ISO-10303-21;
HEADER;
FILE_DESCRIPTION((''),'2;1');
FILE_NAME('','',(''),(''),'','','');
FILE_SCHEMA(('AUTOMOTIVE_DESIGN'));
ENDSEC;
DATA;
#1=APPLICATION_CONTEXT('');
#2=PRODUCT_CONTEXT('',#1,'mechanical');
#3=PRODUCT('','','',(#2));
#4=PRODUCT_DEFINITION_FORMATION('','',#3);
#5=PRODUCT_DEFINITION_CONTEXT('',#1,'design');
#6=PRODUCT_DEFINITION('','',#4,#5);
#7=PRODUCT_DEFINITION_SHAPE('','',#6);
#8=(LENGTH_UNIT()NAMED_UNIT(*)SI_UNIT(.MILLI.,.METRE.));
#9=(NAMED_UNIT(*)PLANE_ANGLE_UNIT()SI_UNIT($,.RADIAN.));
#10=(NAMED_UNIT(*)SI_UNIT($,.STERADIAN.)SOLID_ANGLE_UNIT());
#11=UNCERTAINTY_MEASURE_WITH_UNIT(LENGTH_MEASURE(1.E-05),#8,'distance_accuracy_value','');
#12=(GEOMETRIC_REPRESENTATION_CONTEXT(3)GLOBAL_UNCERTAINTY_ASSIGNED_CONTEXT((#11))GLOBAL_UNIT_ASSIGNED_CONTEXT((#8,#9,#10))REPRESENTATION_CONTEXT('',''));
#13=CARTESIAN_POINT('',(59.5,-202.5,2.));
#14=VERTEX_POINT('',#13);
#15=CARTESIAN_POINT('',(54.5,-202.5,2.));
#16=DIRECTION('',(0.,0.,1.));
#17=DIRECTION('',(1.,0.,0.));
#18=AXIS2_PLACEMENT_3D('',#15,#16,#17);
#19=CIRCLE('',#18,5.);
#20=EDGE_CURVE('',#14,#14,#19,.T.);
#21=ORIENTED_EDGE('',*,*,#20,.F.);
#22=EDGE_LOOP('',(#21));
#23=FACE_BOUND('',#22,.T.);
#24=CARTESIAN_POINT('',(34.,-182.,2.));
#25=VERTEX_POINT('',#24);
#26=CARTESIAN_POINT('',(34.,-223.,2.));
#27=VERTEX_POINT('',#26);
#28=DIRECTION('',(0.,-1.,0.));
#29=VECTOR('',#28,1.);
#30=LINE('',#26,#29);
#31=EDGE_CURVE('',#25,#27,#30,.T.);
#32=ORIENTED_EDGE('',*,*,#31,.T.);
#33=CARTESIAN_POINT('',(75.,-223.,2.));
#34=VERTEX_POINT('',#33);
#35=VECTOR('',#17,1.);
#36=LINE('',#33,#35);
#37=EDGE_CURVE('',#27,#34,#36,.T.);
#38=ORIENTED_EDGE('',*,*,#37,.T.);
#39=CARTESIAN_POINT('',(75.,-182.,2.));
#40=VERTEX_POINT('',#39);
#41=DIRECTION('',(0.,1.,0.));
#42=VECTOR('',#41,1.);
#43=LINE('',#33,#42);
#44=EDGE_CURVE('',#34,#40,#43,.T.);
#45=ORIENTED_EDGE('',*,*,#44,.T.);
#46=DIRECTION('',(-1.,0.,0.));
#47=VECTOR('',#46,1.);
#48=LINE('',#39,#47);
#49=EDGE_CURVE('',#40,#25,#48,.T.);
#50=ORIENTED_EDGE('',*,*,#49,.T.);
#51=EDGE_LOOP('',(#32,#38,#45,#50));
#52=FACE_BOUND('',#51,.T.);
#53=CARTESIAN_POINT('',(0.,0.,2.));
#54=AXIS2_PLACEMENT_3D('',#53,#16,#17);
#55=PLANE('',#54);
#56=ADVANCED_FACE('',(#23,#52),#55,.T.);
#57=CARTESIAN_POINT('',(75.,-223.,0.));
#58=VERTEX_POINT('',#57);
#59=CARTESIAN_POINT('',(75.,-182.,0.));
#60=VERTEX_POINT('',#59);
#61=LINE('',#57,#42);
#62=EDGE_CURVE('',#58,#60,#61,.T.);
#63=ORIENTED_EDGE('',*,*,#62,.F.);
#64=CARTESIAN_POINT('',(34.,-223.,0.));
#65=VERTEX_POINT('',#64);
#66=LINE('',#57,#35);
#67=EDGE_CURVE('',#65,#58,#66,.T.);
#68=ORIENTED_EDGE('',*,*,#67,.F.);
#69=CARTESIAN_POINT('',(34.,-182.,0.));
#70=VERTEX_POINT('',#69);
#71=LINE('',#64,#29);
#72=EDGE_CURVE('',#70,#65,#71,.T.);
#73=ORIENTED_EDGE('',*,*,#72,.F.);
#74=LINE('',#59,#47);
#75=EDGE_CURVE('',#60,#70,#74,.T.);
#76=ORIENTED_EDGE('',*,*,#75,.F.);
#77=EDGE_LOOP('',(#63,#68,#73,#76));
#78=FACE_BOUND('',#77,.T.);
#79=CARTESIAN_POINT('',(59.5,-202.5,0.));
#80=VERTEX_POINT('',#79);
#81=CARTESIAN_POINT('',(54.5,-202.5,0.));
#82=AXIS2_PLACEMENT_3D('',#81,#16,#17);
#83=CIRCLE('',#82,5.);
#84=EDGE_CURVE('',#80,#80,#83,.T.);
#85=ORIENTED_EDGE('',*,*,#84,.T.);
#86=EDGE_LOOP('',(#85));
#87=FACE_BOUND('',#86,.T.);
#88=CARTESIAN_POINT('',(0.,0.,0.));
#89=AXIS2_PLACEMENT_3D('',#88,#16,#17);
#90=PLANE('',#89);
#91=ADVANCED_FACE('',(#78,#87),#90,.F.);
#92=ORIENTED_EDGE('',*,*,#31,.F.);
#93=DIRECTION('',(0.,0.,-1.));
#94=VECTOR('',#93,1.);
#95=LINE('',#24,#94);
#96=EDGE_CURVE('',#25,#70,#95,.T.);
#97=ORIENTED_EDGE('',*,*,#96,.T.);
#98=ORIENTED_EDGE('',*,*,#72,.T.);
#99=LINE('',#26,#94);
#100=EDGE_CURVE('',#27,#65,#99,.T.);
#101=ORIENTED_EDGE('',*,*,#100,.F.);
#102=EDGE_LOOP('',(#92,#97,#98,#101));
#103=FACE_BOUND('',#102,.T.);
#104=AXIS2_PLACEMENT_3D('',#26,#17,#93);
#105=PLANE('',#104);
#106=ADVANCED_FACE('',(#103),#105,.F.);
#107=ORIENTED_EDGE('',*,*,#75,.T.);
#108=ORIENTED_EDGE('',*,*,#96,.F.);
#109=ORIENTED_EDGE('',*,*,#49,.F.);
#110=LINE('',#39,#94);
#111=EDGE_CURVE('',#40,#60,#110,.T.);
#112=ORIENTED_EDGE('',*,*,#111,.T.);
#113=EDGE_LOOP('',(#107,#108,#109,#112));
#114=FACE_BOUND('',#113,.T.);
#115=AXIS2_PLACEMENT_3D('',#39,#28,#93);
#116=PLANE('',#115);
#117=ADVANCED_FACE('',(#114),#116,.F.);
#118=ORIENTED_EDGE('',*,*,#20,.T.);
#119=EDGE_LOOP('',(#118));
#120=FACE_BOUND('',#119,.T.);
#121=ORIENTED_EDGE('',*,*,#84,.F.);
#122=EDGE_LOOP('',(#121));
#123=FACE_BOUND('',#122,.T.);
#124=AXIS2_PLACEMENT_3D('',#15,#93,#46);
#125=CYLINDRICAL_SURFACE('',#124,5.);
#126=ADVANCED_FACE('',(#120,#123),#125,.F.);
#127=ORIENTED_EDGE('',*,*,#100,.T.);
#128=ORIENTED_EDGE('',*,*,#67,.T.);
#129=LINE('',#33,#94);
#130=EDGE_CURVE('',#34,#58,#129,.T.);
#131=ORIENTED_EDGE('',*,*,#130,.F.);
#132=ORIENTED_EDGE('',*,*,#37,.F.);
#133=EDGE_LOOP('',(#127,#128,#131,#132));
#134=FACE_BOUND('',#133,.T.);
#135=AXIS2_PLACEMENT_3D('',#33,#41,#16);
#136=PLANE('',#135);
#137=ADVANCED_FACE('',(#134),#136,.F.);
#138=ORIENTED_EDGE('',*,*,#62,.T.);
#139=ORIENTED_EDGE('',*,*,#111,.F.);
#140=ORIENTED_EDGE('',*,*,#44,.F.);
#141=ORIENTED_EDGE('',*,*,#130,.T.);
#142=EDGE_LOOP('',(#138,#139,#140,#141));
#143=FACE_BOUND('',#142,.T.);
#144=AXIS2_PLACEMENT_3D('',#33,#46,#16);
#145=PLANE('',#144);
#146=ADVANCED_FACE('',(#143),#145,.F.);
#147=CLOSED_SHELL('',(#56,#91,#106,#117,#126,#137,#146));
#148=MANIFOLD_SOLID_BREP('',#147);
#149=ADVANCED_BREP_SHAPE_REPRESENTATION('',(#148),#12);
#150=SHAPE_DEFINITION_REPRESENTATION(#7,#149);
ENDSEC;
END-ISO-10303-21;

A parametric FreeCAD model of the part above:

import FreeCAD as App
import Part
import Sketcher

V = App.Vector
Q = App.Units.Quantity


def add_polygon(sketch, points):
    """Adds a closed chain of lines whose ends are joined by coincident constraints."""
    first, n = sketch.GeometryCount, len(points)
    for a, b in zip(points, points[1:] + points[:1]):
        sketch.addGeometry(Part.LineSegment(App.Vector(*a, 0), App.Vector(*b, 0)), False)
    for i in range(n):
        sketch.addConstraint(Sketcher.Constraint("Coincident", first + i, 2, first + (i + 1) % n, 1))

doc = App.newDocument("Part")
body = doc.addObject("PartDesign::Body", "Body")

sketch1 = body.newObject("Sketcher::SketchObject", "Sketch")
sketch1.AttachmentSupport = (doc.getObject("XY_Plane"), [""])
sketch1.MapMode = "FlatFace"
add_polygon(sketch1, [(34, -182), (34, -223), (75, -223), (75, -182)])
sketch1.addConstraint(Sketcher.Constraint("Vertical", 0))
sketch1.addConstraint(Sketcher.Constraint("Horizontal", 1))
sketch1.addConstraint(Sketcher.Constraint("Vertical", 2))
sketch1.addConstraint(Sketcher.Constraint("Horizontal", 3))
sketch1.addConstraint(Sketcher.Constraint("Equal", 3, 0))
sketch1.addConstraint(Sketcher.Constraint("DistanceX", 1, 1, 1, 2, Q("41 mm")))
sketch1.addConstraint(Sketcher.Constraint("DistanceX", -1, 1, 0, 2, Q("34 mm")))
sketch1.addConstraint(Sketcher.Constraint("DistanceY", 0, 2, -1, 1, Q("223 mm")))
pad1 = body.newObject("PartDesign::Pad", "Pad")
pad1.Profile = sketch1
pad1.Length = 2

sketch2 = body.newObject("Sketcher::SketchObject", "Sketch001")
sketch2.AttachmentSupport = (doc.getObject("XY_Plane"), [""])
sketch2.MapMode = "FlatFace"
sketch2.addGeometry(Part.Circle(V(54, -202, 0), V(0, 0, 1), 5), False)
sketch2.addConstraint(Sketcher.Constraint("Diameter", 0, Q("10 mm")))
sketch2.addConstraint(Sketcher.Constraint("DistanceX", -1, 1, 0, 3, Q("54.5 mm")))
sketch2.addConstraint(Sketcher.Constraint("DistanceY", 0, 3, -1, 1, Q("202.5 mm")))
pocket1 = body.newObject("PartDesign::Pocket", "Pocket")
pocket1.Profile = sketch2
pocket1.Type = "ThroughAll"
pocket1.Reversed = True

doc.recompute()
